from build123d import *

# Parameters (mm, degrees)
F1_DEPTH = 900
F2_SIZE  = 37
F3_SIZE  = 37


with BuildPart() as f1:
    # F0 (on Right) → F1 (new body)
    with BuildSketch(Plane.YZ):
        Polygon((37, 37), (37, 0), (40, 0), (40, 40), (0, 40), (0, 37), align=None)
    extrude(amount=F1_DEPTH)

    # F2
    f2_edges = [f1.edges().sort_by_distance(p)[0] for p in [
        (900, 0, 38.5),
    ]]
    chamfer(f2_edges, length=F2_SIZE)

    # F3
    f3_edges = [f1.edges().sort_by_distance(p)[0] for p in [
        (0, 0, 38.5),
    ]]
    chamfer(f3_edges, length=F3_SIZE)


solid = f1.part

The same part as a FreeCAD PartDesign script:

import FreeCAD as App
import Part
import Sketcher

V = App.Vector
Q = App.Units.Quantity


def edges_at(feature, points):
    """Names of the edges that pass closest to the given points."""
    edges = feature.Shape.Edges
    near = lambda p: min(range(len(edges)), key=lambda i: edges[i].distToShape(Part.Vertex(*p))[0])
    return sorted({f"Edge{near(p) + 1}" for p in points})

doc = App.newDocument("Part")
body = doc.addObject("PartDesign::Body", "Body")

sketch1 = body.newObject("Sketcher::SketchObject", "Sketch")
sketch1.AttachmentSupport = (doc.getObject("YZ_Plane"), [""])
sketch1.MapMode = "FlatFace"
sketch1.addGeometry([
    Part.LineSegment(V(37, 37, 0), V(37, 0, 0)),
    Part.LineSegment(V(37, 0, 0), V(40, 0, 0)),
    Part.LineSegment(V(40, 0, 0), V(40, 40, 0)),
    Part.LineSegment(V(40, 40, 0), V(0, 40, 0)),
    Part.LineSegment(V(0, 40, 0), V(0, 37, 0)),
    Part.LineSegment(V(0, 37, 0), V(37, 37, 0)),
], False)
sketch1.addConstraint([
    Sketcher.Constraint("Coincident", 0, 2, 1, 1),
    Sketcher.Constraint("Coincident", 1, 2, 2, 1),
    Sketcher.Constraint("Coincident", 2, 2, 3, 1),
    Sketcher.Constraint("Coincident", 3, 2, 4, 1),
    Sketcher.Constraint("Coincident", 4, 2, 5, 1),
    Sketcher.Constraint("Coincident", 5, 2, 0, 1),
    Sketcher.Constraint("Vertical", 0),
    Sketcher.Constraint("Horizontal", 1),
    Sketcher.Constraint("Vertical", 2),
    Sketcher.Constraint("Horizontal", 3),
    Sketcher.Constraint("Vertical", 4),
    Sketcher.Constraint("Horizontal", 5),
    Sketcher.Constraint("PointOnObject", 0, 2, -1),
    Sketcher.Constraint("PointOnObject", 3, 2, -2),
    Sketcher.Constraint("Equal", 5, 0),
    Sketcher.Constraint("Equal", 3, 2),
    Sketcher.Constraint("DistanceX", 1, 1, 1, 2, Q("3 mm")),
    Sketcher.Constraint("DistanceX", 3, 2, 3, 1, Q("40 mm")),
])
pad1 = body.newObject("PartDesign::Pad", "Pad")
pad1.Profile = sketch1
pad1.Length = 900
doc.recompute()

chamfer = body.newObject("PartDesign::Chamfer", "Chamfer")
chamfer.Base = (pad1, edges_at(pad1, [(900, 0, 38.5)]))
chamfer.Size = 37
doc.recompute()

chamfer2 = body.newObject("PartDesign::Chamfer", "Chamfer001")
chamfer2.Base = (chamfer, edges_at(chamfer, [(0, 0, 38.5)]))
chamfer2.Size = 37

doc.recompute()
